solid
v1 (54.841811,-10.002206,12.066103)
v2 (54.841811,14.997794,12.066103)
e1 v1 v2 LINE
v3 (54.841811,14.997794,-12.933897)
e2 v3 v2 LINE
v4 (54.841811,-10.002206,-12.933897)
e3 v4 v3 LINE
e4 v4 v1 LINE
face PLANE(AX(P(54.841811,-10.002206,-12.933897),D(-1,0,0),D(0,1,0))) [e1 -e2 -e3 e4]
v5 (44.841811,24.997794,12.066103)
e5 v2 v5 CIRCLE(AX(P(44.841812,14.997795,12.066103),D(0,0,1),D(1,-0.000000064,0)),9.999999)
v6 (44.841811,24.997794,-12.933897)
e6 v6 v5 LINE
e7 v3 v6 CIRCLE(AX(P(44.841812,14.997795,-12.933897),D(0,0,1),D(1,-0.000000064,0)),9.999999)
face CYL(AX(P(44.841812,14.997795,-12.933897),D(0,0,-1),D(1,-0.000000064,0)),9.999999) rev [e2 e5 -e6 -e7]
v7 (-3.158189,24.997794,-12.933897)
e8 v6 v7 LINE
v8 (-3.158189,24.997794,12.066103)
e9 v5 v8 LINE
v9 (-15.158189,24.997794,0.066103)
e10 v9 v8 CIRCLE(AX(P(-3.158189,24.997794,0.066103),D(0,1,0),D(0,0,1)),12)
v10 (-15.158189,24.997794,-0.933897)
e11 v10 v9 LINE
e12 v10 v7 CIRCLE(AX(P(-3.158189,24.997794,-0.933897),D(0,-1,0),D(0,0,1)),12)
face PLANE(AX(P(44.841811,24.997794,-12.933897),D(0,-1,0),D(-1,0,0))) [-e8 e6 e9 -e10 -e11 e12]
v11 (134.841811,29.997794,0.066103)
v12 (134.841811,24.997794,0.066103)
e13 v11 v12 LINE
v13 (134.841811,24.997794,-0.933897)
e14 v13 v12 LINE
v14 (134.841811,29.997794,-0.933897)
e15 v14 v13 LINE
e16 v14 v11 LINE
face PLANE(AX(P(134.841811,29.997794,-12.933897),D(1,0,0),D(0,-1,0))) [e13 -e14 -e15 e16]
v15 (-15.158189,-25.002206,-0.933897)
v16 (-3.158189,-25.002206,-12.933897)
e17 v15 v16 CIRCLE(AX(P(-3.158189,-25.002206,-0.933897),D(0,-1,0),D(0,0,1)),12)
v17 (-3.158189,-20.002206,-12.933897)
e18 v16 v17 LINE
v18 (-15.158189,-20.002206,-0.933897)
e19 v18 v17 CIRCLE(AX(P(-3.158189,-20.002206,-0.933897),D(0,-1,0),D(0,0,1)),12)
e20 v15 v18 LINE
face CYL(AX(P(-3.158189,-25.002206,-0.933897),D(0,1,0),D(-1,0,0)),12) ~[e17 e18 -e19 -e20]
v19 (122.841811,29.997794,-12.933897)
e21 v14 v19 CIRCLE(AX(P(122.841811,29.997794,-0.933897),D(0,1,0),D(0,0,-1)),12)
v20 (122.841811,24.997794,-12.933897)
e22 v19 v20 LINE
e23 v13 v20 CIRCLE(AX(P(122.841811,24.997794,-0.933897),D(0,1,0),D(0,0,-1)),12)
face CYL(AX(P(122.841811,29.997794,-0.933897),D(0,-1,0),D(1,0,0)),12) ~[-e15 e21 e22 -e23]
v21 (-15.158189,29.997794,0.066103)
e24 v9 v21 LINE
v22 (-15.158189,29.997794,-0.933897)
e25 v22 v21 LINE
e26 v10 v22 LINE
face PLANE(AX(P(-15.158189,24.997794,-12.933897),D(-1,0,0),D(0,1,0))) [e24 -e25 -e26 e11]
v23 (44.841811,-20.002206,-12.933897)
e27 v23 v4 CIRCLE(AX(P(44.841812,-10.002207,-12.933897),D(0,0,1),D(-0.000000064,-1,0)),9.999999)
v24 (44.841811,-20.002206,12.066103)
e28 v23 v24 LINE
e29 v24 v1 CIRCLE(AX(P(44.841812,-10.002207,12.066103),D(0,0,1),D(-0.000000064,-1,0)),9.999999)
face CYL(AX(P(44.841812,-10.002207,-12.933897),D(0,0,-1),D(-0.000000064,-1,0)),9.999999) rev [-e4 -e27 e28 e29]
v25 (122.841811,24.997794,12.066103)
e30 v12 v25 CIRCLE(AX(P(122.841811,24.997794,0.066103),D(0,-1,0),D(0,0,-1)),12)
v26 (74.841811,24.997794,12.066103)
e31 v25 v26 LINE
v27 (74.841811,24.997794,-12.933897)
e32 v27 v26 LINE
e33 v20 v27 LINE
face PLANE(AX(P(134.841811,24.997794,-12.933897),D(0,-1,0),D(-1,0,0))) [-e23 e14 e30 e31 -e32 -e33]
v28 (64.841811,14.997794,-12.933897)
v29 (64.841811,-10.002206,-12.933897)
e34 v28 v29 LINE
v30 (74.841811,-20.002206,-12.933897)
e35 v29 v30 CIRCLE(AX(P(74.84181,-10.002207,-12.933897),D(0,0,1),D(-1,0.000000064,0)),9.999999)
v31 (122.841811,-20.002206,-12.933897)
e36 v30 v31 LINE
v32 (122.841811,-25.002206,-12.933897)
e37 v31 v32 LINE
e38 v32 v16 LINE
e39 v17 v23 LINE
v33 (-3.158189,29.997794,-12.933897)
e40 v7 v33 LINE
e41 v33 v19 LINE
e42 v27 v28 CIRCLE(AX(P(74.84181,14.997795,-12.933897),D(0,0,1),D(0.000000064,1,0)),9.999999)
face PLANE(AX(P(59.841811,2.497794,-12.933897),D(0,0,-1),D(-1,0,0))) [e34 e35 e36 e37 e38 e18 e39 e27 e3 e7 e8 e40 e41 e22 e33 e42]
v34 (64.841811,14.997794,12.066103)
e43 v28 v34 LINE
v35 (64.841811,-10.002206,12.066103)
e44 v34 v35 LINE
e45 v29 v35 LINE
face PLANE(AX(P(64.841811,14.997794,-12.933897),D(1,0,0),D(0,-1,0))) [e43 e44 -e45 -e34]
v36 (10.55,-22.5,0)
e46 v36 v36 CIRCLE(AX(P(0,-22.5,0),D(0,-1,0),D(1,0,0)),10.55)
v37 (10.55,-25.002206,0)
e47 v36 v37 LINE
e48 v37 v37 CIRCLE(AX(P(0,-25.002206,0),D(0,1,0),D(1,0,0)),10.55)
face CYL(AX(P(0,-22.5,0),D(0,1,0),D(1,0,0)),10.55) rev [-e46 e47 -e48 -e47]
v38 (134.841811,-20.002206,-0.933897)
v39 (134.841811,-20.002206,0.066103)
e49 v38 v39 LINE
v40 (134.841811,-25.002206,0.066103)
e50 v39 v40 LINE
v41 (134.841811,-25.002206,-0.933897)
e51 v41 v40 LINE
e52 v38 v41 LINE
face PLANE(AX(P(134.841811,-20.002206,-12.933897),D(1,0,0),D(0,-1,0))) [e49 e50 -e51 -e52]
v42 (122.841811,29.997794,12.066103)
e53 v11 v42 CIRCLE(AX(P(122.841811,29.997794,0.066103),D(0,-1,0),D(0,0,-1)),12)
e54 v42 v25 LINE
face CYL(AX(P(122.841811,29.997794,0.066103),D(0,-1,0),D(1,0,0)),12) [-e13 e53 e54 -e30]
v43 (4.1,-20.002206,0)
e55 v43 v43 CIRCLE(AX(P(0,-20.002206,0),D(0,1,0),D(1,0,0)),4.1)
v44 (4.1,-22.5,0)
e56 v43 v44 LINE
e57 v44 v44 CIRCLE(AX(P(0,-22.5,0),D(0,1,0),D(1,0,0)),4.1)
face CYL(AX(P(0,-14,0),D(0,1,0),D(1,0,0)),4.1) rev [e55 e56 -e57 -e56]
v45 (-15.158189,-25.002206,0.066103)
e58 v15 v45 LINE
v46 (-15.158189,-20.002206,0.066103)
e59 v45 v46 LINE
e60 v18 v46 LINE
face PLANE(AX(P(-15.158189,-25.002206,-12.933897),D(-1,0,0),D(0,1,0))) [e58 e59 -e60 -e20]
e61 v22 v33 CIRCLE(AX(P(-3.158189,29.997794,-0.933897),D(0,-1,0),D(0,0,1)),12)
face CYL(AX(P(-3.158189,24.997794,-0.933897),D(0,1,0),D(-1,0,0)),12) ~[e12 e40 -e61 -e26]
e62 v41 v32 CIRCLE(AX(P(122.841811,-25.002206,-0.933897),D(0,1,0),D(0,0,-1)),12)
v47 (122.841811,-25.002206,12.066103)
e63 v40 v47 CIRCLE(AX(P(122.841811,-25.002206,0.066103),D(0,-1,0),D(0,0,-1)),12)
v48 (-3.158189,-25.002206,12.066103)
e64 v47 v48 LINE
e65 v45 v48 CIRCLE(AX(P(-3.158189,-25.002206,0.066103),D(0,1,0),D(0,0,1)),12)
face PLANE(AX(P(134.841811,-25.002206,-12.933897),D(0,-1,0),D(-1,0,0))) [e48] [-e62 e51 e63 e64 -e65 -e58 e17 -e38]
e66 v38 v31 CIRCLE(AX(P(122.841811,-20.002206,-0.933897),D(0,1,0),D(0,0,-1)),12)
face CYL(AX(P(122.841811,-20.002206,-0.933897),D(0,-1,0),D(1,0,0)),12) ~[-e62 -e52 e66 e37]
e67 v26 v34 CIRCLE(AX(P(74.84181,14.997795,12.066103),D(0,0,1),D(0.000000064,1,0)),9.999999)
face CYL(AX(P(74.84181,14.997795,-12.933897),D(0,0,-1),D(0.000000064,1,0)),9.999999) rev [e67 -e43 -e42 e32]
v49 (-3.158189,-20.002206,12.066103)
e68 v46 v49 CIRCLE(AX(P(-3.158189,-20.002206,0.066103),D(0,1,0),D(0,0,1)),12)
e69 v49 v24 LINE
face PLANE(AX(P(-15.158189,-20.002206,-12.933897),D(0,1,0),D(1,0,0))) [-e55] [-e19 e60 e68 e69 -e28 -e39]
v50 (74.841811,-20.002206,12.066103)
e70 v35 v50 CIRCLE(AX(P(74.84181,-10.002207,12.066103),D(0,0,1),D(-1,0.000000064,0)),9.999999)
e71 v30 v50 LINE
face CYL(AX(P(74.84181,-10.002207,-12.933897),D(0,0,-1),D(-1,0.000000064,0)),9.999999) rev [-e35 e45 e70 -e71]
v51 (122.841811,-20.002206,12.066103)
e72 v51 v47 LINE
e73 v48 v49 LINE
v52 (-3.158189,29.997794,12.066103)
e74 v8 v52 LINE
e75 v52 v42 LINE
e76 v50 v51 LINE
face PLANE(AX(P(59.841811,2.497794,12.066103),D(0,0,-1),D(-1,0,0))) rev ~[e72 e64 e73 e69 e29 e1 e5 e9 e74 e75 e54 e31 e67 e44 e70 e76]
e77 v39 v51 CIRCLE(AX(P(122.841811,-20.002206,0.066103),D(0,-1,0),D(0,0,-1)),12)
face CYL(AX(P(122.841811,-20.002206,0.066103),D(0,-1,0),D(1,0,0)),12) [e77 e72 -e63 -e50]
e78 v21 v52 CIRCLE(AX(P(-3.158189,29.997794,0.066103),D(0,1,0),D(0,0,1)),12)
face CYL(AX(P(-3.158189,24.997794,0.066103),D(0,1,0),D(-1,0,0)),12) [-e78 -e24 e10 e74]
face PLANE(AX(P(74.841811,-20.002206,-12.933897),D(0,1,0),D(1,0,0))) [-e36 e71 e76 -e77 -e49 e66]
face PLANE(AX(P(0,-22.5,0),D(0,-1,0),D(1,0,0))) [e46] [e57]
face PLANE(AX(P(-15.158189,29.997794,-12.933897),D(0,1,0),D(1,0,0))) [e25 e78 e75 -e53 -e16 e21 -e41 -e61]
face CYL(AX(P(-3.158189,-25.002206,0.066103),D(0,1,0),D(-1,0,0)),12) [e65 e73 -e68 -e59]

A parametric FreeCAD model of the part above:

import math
import FreeCAD as App
import Part
import Sketcher
from FreeCAD import Vector
Q = App.Units.Quantity


def edges_at(feature, points):
    """Names of the edges that pass closest to the given points."""
    edges = feature.Shape.Edges
    near = lambda p: min(range(len(edges)), key=lambda i: edges[i].distToShape(Part.Vertex(*p))[0])
    return sorted({f"Edge{near(p) + 1}" for p in points})

doc = App.newDocument("Part")
body = doc.addObject("PartDesign::Body", "Body")

sketch1 = doc.addObject("Sketcher::SketchObject", "Sketch")
body.addObject(sketch1)
sketch1.AttachmentSupport = (doc.XY_Plane, [""])
sketch1.MapMode = "FlatFace"
sketch1.addGeometry(Part.Circle(Vector(0, 0, 0), Vector(0, 0, 1), 4.1), False)
sketch1.addConstraint([
    Sketcher.Constraint("Coincident", 0, 3, -1, 1),
    Sketcher.Constraint("Diameter", 0, Q("8.2 mm")),
])
pad1 = doc.addObject("PartDesign::Pad", "Pad")
body.addObject(pad1)
pad1.Profile = sketch1
pad1.Length = 10
body2 = doc.addObject("PartDesign::Body", "Body001")
doc.recompute()

body.Placement = App.Placement(Vector(0, 0, 0), App.Rotation(Vector(1, 0, 0), 90))
boolean = doc.addObject("PartDesign::Boolean", "Boolean")
body2.addObject(boolean)
boolean.Type = "Fuse"
boolean.addObjects([body])
body3 = doc.addObject("PartDesign::Body", "Body002")
doc.recompute()

body2.Placement = App.Placement(Vector(0, -14, 0), App.Rotation(Vector(0, 0, 1), 0))
boolean2 = doc.addObject("PartDesign::Boolean", "Boolean001")
body3.addObject(boolean2)
boolean2.Type = "Fuse"
boolean2.addObjects([body2])
body4 = doc.addObject("PartDesign::Body", "Body003")

sketch2 = doc.addObject("Sketcher::SketchObject", "Sketch001")
body4.addObject(sketch2)
sketch2.AttachmentSupport = (doc.getObject("XY_Plane003"), [""])
sketch2.MapMode = "FlatFace"
sketch2.addGeometry(Part.Circle(Vector(0, 0, 0), Vector(0, 0, 1), 10.55), False)
sketch2.addConstraint([
    Sketcher.Constraint("Coincident", 0, 3, -1, 1),
    Sketcher.Constraint("Diameter", 0, Q("21.1 mm")),
])
pad2 = doc.addObject("PartDesign::Pad", "Pad001")
body4.addObject(pad2)
pad2.Profile = sketch2
pad2.Length = 10
body5 = doc.addObject("PartDesign::Body", "Body004")
doc.recompute()

body4.Placement = App.Placement(Vector(0, 0, 0), App.Rotation(Vector(1, 0, 0), 90))
boolean3 = doc.addObject("PartDesign::Boolean", "Boolean002")
body5.addObject(boolean3)
boolean3.Type = "Fuse"
boolean3.addObjects([body4])
body6 = doc.addObject("PartDesign::Body", "Body005")
doc.recompute()

body5.Placement = App.Placement(Vector(0, -22.5, 0), App.Rotation(Vector(0, 0, 1), 0))
boolean4 = doc.addObject("PartDesign::Boolean", "Boolean003")
body6.addObject(boolean4)
boolean4.Type = "Fuse"
boolean4.addObjects([body5])
doc.recompute()

boolean5 = doc.addObject("PartDesign::Boolean", "Boolean004")
body6.addObject(boolean5)
boolean5.Type = "Fuse"
boolean5.addObjects([body3])
body7 = doc.addObject("PartDesign::Body", "Body006")

sketch3 = doc.addObject("Sketcher::SketchObject", "Sketch002")
body7.addObject(sketch3)
sketch3.AttachmentSupport = (doc.getObject("XY_Plane006"), [""])
sketch3.MapMode = "FlatFace"
sketch3.addGeometry([
    Part.LineSegment(Vector(-25, -25, 0), Vector(-25, -30, 0)),
    Part.LineSegment(Vector(-25, -30, 0), Vector(125, -30, 0)),
    Part.LineSegment(Vector(125, -30, 0), Vector(125, -25, 0)),
    Part.LineSegment(Vector(125, -25, 0), Vector(65, -25, 0)),
    Part.ArcOfCircle(Part.Circle(Vector(64.999999, -15.000001, 0), Vector(0, 0, 1), 9.999999), math.radians(179.999996), math.radians(270.000004)),
    Part.LineSegment(Vector(55, -15, 0), Vector(55, 10, 0)),
    Part.ArcOfCircle(Part.Circle(Vector(64.999999, 10.000001, 0), Vector(0, 0, 1), 9.999999), math.radians(89.999996), math.radians(180.000004)),
    Part.LineSegment(Vector(65, 20, 0), Vector(125, 20, 0)),
    Part.LineSegment(Vector(125, 20, 0), Vector(125, 25, 0)),
    Part.LineSegment(Vector(125, 25, 0), Vector(-25, 25, 0)),
    Part.LineSegment(Vector(-25, 25, 0), Vector(-25, 20, 0)),
    Part.LineSegment(Vector(-25, 20, 0), Vector(35, 20, 0)),
    Part.ArcOfCircle(Part.Circle(Vector(35.000001, 10.000001, 0), Vector(0, 0, 1), 9.999999), math.radians(-0.000004), math.radians(90.000004)),
    Part.LineSegment(Vector(45, 10, 0), Vector(45, -15, 0)),
    Part.ArcOfCircle(Part.Circle(Vector(35.000001, -15.000001, 0), Vector(0, 0, 1), 9.999999), math.radians(-90.000004), math.radians(0.000004)),
    Part.LineSegment(Vector(35, -25, 0), Vector(-25, -25, 0)),
], False)
sketch3.addConstraint([
    Sketcher.Constraint("Coincident", 0, 2, 1, 1),
    Sketcher.Constraint("Coincident", 1, 2, 2, 1),
    Sketcher.Constraint("Coincident", 2, 2, 3, 1),
    Sketcher.Constraint("Tangent", 3, 2, 4, 2),
    Sketcher.Constraint("Tangent", 4, 1, 5, 1),
    Sketcher.Constraint("Tangent", 5, 2, 6, 2),
    Sketcher.Constraint("Tangent", 6, 1, 7, 1),
    Sketcher.Constraint("Coincident", 7, 2, 8, 1),
    Sketcher.Constraint("Coincident", 8, 2, 9, 1),
    Sketcher.Constraint("Coincident", 9, 2, 10, 1),
    Sketcher.Constraint("Coincident", 10, 2, 11, 1),
    Sketcher.Constraint("Tangent", 11, 2, 12, 2),
    Sketcher.Constraint("Tangent", 12, 1, 13, 1),
    Sketcher.Constraint("Tangent", 13, 2, 14, 2),
    Sketcher.Constraint("Tangent", 14, 1, 15, 1),
    Sketcher.Constraint("Coincident", 15, 2, 0, 1),
    Sketcher.Constraint("Vertical", 0),
    Sketcher.Constraint("Horizontal", 1),
    Sketcher.Constraint("Vertical", 2),
    Sketcher.Constraint("Horizontal", 3),
    Sketcher.Constraint("Vertical", 5),
    Sketcher.Constraint("Horizontal", 7),
    Sketcher.Constraint("Vertical", 8),
    Sketcher.Constraint("Horizontal", 9),
    Sketcher.Constraint("Vertical", 10),
    Sketcher.Constraint("Horizontal", 11),
    Sketcher.Constraint("Vertical", 13),
    Sketcher.Constraint("Horizontal", 15),
    Sketcher.Constraint("Equal", 4, 6),
    Sketcher.Constraint("Equal", 6, 12),
    Sketcher.Constraint("Equal", 12, 14),
    Sketcher.Constraint("Symmetric", 2, 2, 8, 2, -1),
    Sketcher.Constraint("Symmetric", 9, 2, 15, 2, -1),
    Sketcher.Constraint("Horizontal", 6, 3, 12, 3),
    Sketcher.Constraint("Equal", 7, 11),
    Sketcher.Constraint("Equal", 2, 8),
    Sketcher.Constraint("Radius", 4, Q("9.999999 mm")),
    Sketcher.Constraint("DistanceX", 1, 1, 1, 2, Q("150 mm")),
    Sketcher.Constraint("DistanceX", 3, 2, 3, 1, Q("60 mm")),
    Sketcher.Constraint("DistanceY", 0, 2, 0, 1, Q("5 mm")),
    Sketcher.Constraint("DistanceY", 5, 1, 5, 2, Q("25 mm")),
    Sketcher.Constraint("DistanceX", -1, 1, 4, 3, Q("64.999999 mm")),
])
pad3 = doc.addObject("PartDesign::Pad", "Pad002")
body7.addObject(pad3)
pad3.Profile = sketch3
pad3.Length = 25
doc.recompute()

fillet = doc.addObject("PartDesign::Fillet", "Fillet")
body7.addObject(fillet)
fillet.Base = (pad3, edges_at(pad3, [
    (-25, -27.5, 0),
    (-25, -27.5, 25),
    (-25, 22.5, 0),
    (-25, 22.5, 25),
    (125, 22.5, 0),
    (125, 22.5, 25),
    (125, -27.5, 0),
    (125, -27.5, 25),
]))
fillet.Radius = 12
body8 = doc.addObject("PartDesign::Body", "Body007")
doc.recompute()

body7.Placement = App.Placement(Vector(9.841811, 4.997794, -12.933897), App.Rotation(Vector(0, 0, 1), 0))
boolean6 = doc.addObject("PartDesign::Boolean", "Boolean005")
body8.addObject(boolean6)
boolean6.Type = "Fuse"
boolean6.addObjects([body7])
doc.recompute()

boolean7 = doc.addObject("PartDesign::Boolean", "Boolean006")
body8.addObject(boolean7)
boolean7.Type = "Cut"
boolean7.addObjects([body6])

doc.recompute()
